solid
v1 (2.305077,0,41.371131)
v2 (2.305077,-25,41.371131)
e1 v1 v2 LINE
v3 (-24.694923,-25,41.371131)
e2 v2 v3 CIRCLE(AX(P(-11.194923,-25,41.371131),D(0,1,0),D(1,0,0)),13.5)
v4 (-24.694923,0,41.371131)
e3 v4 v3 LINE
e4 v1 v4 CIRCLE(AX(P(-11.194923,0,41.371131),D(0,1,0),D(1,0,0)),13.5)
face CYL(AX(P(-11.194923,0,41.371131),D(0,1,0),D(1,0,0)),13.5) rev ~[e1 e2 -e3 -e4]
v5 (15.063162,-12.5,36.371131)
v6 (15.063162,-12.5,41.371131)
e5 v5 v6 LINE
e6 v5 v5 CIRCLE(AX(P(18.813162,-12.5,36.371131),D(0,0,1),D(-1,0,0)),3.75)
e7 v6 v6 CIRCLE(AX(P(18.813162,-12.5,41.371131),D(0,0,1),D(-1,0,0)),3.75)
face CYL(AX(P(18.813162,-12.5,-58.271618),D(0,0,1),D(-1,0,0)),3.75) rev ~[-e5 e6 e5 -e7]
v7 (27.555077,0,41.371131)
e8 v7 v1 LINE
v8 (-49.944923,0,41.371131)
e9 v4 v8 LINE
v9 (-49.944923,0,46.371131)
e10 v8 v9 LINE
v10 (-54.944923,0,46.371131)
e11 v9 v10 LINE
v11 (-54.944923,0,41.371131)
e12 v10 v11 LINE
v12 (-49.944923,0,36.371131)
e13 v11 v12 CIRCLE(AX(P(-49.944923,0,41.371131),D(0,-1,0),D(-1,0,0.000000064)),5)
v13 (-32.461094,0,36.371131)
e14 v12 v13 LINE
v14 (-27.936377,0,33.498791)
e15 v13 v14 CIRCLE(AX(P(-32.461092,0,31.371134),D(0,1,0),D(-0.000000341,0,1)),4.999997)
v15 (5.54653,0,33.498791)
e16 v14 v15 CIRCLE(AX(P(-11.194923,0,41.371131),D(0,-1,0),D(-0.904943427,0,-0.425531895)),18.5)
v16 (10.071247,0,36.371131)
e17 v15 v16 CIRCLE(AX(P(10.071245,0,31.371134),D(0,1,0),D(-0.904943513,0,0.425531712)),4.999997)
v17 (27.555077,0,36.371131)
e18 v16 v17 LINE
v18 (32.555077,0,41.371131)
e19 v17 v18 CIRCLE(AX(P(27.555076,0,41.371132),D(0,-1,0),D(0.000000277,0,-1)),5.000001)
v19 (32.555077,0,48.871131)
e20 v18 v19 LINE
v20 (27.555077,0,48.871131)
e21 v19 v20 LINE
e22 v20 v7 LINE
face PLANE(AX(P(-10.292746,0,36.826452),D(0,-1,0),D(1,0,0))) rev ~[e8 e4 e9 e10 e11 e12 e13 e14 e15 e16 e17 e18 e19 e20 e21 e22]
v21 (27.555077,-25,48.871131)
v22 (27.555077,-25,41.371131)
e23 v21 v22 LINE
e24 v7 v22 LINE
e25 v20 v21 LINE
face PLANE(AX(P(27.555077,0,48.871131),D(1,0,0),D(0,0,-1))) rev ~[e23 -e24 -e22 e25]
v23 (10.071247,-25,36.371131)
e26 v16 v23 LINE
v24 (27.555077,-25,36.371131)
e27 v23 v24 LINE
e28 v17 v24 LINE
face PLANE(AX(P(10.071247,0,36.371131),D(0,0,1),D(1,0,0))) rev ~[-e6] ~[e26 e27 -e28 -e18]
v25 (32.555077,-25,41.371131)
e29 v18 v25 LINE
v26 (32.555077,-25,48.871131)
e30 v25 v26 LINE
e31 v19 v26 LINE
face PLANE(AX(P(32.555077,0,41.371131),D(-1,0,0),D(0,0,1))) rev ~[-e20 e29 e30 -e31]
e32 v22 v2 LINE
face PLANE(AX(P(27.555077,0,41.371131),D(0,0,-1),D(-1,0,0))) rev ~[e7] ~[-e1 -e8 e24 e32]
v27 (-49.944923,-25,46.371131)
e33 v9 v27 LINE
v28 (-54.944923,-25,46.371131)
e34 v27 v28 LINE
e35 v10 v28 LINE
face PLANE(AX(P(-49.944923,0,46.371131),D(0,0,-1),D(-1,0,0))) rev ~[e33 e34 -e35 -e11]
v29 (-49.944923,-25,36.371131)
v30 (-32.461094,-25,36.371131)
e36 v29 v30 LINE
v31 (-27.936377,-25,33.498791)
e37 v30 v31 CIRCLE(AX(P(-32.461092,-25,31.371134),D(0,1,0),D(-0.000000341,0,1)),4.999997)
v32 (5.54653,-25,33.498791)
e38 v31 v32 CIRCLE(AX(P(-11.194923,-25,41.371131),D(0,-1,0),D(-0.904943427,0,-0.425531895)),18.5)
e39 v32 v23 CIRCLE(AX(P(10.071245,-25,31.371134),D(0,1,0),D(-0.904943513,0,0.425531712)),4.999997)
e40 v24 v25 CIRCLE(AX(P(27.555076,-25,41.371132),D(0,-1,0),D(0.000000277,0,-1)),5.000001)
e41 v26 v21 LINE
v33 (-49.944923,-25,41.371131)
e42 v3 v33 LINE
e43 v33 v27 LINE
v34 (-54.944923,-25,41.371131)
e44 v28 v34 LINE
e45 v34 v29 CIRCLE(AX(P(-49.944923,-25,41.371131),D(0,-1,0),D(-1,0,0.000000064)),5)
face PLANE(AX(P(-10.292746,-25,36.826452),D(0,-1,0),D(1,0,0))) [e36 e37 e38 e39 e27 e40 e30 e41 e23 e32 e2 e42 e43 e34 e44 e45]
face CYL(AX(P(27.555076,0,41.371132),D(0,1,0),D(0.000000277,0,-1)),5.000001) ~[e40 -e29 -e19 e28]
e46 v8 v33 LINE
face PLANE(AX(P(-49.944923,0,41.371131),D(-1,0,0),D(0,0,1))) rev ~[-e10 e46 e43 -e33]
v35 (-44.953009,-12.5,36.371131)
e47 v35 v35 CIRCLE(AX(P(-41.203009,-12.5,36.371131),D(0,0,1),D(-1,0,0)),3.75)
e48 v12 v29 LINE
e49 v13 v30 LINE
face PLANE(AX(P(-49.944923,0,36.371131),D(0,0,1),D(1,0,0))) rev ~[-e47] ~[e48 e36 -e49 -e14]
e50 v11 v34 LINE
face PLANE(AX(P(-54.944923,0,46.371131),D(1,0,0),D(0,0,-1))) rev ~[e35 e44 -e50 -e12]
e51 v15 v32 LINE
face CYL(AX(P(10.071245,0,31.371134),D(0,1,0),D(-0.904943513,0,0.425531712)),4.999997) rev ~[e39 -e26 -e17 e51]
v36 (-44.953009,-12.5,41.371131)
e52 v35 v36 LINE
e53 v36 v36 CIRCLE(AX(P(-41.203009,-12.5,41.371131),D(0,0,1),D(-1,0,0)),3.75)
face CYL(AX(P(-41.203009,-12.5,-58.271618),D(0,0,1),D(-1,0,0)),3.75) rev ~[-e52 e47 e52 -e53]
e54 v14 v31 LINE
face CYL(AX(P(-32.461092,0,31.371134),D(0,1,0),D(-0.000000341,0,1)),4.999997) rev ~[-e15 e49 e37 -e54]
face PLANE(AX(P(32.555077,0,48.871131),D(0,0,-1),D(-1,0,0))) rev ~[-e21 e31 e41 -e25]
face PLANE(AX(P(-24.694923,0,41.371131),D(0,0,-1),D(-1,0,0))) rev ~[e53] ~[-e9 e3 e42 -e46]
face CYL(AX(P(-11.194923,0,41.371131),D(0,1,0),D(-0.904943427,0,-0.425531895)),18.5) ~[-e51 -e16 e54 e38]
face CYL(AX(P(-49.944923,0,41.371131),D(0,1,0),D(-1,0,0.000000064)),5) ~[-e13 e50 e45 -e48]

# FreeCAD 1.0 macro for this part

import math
import FreeCAD as App
import Part
import Sketcher
from FreeCAD import Vector
Q = App.Units.Quantity

doc = App.newDocument("Part")
body = doc.addObject("PartDesign::Body", "Body")

# Sketch on XZ plane
sketch1 = body.newObject("Sketcher::SketchObject", "Sketch")
sketch1.AttachmentSupport = (doc.getObject("XZ_Plane"), [""])
sketch1.MapMode = "FlatFace"
sketch1.addGeometry([
    Part.LineSegment(Vector(-49.9, 46.4, 0), Vector(-54.9, 46.4, 0)),  # 0
    Part.LineSegment(Vector(-54.9, 46.4, 0), Vector(-54.9, 41.4, 0)),  # 1
    Part.ArcOfCircle(Part.Circle(Vector(-49.9, 41.4, 0), Vector(0, 0, 1), 5), math.radians(180), math.radians(270)),  # 2
    Part.LineSegment(Vector(-49.9, 36.4, 0), Vector(-32.5, 36.4, 0)),  # 3
    Part.ArcOfCircle(Part.Circle(Vector(-32.5, 31.4, 0), Vector(0, 0, 1), 5), math.radians(25), math.radians(90)),  # 4
    Part.ArcOfCircle(Part.Circle(Vector(-11.2, 41.4, 0), Vector(0, 0, 1), 18.5), math.radians(-155), math.radians(-25)),  # 5
    Part.ArcOfCircle(Part.Circle(Vector(10.1, 31.4, 0), Vector(0, 0, 1), 5), math.radians(90), math.radians(155)),  # 6
    Part.LineSegment(Vector(10.1, 36.4, 0), Vector(27.6, 36.4, 0)),  # 7
    Part.ArcOfCircle(Part.Circle(Vector(27.6, 41.4, 0), Vector(0, 0, 1), 5), math.radians(-90), math.radians(0)),  # 8
    Part.LineSegment(Vector(32.6, 41.4, 0), Vector(32.6, 48.9, 0)),  # 9
    Part.LineSegment(Vector(32.6, 48.9, 0), Vector(27.6, 48.9, 0)),  # 10
    Part.LineSegment(Vector(27.6, 48.9, 0), Vector(27.6, 41.4, 0)),  # 11
    Part.LineSegment(Vector(27.6, 41.4, 0), Vector(2.3, 41.4, 0)),  # 12
    Part.ArcOfCircle(Part.Circle(Vector(-11.2, 41.4, 0), Vector(0, 0, 1), 13.5), math.radians(180), math.radians(360)),  # 13
    Part.LineSegment(Vector(-24.7, 41.4, 0), Vector(-49.9, 41.4, 0)),  # 14
    Part.LineSegment(Vector(-49.9, 41.4, 0), Vector(-49.9, 46.4, 0)),  # 15
], False)
sketch1.addConstraint([
    Sketcher.Constraint("Coincident", 0, 2, 1, 1),
    Sketcher.Constraint("Tangent", 1, 2, 2, 1),
    Sketcher.Constraint("Tangent", 2, 2, 3, 1),
    Sketcher.Constraint("Tangent", 3, 2, 4, 2),
    Sketcher.Constraint("Tangent", 4, 1, 5, 1),
    Sketcher.Constraint("Tangent", 5, 2, 6, 2),
    Sketcher.Constraint("Tangent", 6, 1, 7, 1),
    Sketcher.Constraint("Tangent", 7, 2, 8, 1),
    Sketcher.Constraint("Tangent", 8, 2, 9, 1),
    Sketcher.Constraint("Coincident", 9, 2, 10, 1),
    Sketcher.Constraint("Coincident", 10, 2, 11, 1),
    Sketcher.Constraint("Coincident", 11, 2, 12, 1),
    Sketcher.Constraint("Coincident", 12, 2, 13, 2),
    Sketcher.Constraint("Coincident", 13, 1, 14, 1),
    Sketcher.Constraint("Coincident", 14, 2, 15, 1),
    Sketcher.Constraint("Coincident", 15, 2, 0, 1),
    Sketcher.Constraint("Horizontal", 0),
    Sketcher.Constraint("Vertical", 1),
    Sketcher.Constraint("Horizontal", 3),
    Sketcher.Constraint("Horizontal", 7),
    Sketcher.Constraint("Vertical", 9),
    Sketcher.Constraint("Horizontal", 10),
    Sketcher.Constraint("Vertical", 11),
    Sketcher.Constraint("Horizontal", 12),
    Sketcher.Constraint("Horizontal", 14),
    Sketcher.Constraint("Vertical", 15),
    Sketcher.Constraint("Coincident", 13, 3, 5, 3),
    Sketcher.Constraint("Coincident", 11, 2, 8, 3),
    Sketcher.Constraint("Coincident", 14, 2, 2, 3),
    Sketcher.Constraint("Equal", 4, 6),
    Sketcher.Constraint("Equal", 2, 8),
    Sketcher.Constraint("Horizontal", 2, 3, 5, 3),
    Sketcher.Constraint("Horizontal", 4, 3, 6, 3),
    Sketcher.Constraint("Equal", 3, 7),
    Sketcher.Constraint("Equal", 10, 1),
    Sketcher.Constraint("Radius", 2, Q("5 mm")),
    Sketcher.Constraint("Radius", 5, Q("18.5 mm")),
    Sketcher.Constraint("Radius", 13, Q("13.5 mm")),
    Sketcher.Constraint("DistanceY", 9, 1, 9, 2, Q("7.5 mm")),
    Sketcher.Constraint("DistanceY", 6, 3, 8, 3, Q("9.999999 mm")),
    Sketcher.Constraint("DistanceX", 12, 2, 12, 1, Q("25.25 mm")),
    Sketcher.Constraint("DistanceY", -1, 1, 2, 3, Q("41.371131 mm")),
    Sketcher.Constraint("DistanceX", -1, 1, 5, 2, Q("5.54653 mm")),
])
pad1 = body.newObject("PartDesign::Pad", "Pad")
pad1.Profile = sketch1
pad1.Length = 25

# Sketch on XY plane
sketch2 = body.newObject("Sketcher::SketchObject", "Sketch001")
sketch2.AttachmentSupport = (doc.getObject("XY_Plane"), [""])
sketch2.MapMode = "FlatFace"
sketch2.AttachmentOffset = App.Placement(Vector(0, 0, 36.371131), App.Rotation())
sketch2.addGeometry(Part.Circle(Vector(-41.2, -12.5, 0), Vector(0, 0, 1), 3.8), False)
sketch2.addConstraint([
    Sketcher.Constraint("Diameter", 0, Q("7.5 mm")),
    Sketcher.Constraint("DistanceY", 0, 3, -1, 1, Q("12.5 mm")),
    Sketcher.Constraint("DistanceX", 0, 3, -1, 1, Q("41.203009 mm")),
])
doc.recompute()
hole = body.newObject("PartDesign::Hole", "Hole")
hole.Profile = sketch2
hole.ThreadType = "None"
hole.Diameter = 7.5
hole.DepthType = "ThroughAll"
hole.Reversed = True

# Sketch on XY plane
sketch3 = body.newObject("Sketcher::SketchObject", "Sketch002")
sketch3.AttachmentSupport = (doc.getObject("XY_Plane"), [""])
sketch3.MapMode = "FlatFace"
sketch3.AttachmentOffset = App.Placement(Vector(0, 0, 36.371131), App.Rotation())
sketch3.addGeometry(Part.Circle(Vector(18.8, -12.5, 0), Vector(0, 0, 1), 3.8), False)
sketch3.addConstraint([
    Sketcher.Constraint("Diameter", 0, Q("7.5 mm")),
    Sketcher.Constraint("DistanceY", 0, 3, -1, 1, Q("12.5 mm")),
    Sketcher.Constraint("DistanceX", -1, 1, 0, 3, Q("18.813162 mm")),
])
doc.recompute()
hole2 = body.newObject("PartDesign::Hole", "Hole001")
hole2.Profile = sketch3
hole2.ThreadType = "None"
hole2.Diameter = 7.5
hole2.DepthType = "ThroughAll"
hole2.Reversed = True

doc.recompute()
